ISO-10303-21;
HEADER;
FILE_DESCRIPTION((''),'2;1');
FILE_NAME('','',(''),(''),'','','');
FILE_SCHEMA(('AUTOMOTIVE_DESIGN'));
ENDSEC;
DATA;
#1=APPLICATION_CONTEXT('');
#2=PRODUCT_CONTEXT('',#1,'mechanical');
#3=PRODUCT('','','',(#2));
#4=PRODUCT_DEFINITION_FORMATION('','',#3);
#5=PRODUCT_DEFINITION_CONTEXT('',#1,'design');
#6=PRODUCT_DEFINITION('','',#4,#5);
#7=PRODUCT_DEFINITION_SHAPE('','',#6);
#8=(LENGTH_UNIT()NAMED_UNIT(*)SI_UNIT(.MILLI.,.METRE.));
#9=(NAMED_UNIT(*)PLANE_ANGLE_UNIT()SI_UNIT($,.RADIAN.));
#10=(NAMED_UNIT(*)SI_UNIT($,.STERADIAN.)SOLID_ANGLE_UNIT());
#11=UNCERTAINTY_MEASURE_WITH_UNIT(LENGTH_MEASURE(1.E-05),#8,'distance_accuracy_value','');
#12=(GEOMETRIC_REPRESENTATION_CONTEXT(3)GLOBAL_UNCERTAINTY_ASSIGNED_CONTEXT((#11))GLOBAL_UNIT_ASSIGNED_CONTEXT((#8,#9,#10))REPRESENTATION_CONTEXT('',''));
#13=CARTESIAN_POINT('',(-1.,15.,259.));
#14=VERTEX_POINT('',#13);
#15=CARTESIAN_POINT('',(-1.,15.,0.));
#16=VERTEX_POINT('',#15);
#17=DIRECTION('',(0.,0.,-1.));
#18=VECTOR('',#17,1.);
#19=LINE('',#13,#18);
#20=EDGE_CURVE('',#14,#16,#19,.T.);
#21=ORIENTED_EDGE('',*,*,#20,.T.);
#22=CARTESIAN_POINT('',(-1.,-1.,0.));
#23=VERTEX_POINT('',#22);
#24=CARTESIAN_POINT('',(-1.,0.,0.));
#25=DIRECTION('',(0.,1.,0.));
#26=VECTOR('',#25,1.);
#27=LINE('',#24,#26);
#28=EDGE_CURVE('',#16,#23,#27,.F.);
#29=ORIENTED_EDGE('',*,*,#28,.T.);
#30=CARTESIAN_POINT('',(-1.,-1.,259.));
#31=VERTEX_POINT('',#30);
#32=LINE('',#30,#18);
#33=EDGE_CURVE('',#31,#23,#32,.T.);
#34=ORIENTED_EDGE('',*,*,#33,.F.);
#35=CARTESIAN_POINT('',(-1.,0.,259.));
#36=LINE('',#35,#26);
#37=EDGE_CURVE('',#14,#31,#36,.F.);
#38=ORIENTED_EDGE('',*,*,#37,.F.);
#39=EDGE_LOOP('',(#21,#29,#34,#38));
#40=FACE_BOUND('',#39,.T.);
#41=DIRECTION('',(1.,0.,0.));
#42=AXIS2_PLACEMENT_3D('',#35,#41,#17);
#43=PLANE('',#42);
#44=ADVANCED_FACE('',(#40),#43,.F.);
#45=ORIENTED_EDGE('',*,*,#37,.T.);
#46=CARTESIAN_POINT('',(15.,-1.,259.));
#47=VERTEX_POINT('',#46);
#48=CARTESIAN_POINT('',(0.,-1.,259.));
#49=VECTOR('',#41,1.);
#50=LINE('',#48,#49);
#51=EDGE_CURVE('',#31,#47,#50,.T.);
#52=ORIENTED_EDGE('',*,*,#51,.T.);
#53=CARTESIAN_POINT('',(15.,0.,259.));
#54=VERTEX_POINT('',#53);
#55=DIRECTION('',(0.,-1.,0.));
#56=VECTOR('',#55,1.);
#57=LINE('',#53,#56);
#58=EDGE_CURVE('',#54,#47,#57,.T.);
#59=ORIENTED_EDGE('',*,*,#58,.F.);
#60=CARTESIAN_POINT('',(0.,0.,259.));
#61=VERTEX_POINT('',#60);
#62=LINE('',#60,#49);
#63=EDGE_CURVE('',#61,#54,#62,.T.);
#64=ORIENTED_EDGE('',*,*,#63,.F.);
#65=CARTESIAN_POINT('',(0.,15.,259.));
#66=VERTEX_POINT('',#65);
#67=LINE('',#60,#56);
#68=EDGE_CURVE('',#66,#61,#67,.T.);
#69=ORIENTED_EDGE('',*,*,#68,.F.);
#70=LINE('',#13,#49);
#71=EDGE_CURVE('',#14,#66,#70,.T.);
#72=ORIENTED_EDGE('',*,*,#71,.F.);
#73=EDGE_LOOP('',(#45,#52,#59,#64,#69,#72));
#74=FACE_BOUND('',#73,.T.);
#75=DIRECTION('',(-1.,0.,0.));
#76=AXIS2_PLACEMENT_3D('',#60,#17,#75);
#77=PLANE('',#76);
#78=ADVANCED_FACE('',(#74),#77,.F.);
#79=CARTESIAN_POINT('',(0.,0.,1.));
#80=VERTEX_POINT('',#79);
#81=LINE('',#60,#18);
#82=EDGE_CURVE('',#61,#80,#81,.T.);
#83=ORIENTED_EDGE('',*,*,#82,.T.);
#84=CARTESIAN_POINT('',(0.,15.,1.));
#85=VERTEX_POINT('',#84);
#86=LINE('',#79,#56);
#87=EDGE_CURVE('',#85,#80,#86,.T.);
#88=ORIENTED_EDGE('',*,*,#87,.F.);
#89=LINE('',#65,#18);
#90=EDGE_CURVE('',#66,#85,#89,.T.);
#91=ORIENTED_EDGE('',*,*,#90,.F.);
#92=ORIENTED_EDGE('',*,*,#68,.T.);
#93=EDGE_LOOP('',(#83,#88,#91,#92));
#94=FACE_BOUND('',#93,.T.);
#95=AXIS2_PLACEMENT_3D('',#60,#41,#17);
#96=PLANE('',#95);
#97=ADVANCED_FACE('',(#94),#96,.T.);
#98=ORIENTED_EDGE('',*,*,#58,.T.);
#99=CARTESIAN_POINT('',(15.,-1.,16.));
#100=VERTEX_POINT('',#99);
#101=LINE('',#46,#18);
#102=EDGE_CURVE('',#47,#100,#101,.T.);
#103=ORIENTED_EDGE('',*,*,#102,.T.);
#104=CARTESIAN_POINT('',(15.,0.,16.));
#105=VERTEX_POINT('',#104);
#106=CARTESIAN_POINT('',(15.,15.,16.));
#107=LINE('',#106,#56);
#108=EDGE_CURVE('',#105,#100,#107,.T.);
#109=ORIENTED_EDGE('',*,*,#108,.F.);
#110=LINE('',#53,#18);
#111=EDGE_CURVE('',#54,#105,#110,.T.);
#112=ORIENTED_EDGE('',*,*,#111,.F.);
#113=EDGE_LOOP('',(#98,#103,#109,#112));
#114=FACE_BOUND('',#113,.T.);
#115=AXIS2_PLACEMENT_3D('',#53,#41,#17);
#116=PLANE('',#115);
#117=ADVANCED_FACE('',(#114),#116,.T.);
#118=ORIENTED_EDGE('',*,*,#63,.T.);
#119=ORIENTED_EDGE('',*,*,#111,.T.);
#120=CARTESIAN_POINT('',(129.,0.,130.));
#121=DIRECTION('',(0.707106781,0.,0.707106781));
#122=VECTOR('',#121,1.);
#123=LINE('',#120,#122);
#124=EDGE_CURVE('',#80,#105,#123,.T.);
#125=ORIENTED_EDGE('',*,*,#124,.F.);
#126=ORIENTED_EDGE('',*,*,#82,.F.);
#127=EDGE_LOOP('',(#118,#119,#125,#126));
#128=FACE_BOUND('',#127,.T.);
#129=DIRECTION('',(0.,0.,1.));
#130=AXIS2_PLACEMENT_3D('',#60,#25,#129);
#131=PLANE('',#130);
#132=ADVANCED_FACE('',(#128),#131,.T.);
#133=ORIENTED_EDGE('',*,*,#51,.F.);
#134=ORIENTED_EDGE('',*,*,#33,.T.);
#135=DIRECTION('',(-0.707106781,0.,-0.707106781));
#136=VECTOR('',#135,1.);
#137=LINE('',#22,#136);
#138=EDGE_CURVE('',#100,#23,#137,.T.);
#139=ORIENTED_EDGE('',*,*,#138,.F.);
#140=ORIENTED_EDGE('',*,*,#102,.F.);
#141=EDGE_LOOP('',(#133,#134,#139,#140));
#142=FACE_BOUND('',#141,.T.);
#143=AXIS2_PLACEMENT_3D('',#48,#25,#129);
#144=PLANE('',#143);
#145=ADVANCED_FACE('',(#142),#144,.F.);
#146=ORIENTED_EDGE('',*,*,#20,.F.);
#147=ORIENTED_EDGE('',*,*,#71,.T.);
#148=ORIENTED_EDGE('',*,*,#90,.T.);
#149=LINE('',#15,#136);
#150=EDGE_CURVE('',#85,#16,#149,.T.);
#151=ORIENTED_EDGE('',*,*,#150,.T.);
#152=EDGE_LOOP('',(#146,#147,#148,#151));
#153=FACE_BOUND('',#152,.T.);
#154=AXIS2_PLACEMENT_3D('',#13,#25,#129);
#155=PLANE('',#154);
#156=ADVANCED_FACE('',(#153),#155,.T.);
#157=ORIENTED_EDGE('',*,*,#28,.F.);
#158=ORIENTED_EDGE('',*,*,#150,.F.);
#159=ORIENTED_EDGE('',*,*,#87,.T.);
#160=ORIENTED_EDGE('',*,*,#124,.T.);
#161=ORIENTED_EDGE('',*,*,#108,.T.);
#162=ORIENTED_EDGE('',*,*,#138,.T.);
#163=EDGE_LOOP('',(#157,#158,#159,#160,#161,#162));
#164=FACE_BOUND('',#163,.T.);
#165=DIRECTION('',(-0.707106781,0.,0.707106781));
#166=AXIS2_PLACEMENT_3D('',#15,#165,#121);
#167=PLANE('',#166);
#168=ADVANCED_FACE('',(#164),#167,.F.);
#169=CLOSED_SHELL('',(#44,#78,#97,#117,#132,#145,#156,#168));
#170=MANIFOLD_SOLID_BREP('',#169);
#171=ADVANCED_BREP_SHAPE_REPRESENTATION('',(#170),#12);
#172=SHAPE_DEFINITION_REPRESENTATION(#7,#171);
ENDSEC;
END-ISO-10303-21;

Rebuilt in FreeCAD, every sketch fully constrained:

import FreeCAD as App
import Part
import Sketcher

V = App.Vector


def add_polygon(sketch, points):
    """Adds a closed chain of lines whose ends are joined by coincident constraints."""
    first, n = sketch.GeometryCount, len(points)
    for a, b in zip(points, points[1:] + points[:1]):
        sketch.addGeometry(Part.LineSegment(App.Vector(*a, 0), App.Vector(*b, 0)), False)
    for i in range(n):
        sketch.addConstraint(Sketcher.Constraint("Coincident", first + i, 2, first + (i + 1) % n, 1))

doc = App.newDocument("Part")
body = doc.addObject("PartDesign::Body", "Body")

# Sketch on XY plane
sketch1 = body.newObject("Sketcher::SketchObject", "Sketch")
sketch1.AttachmentSupport = (doc.getObject("XY_Plane"), [""])
sketch1.MapMode = "FlatFace"
add_polygon(sketch1, [(15, 0), (0, 0), (0, 15), (-1, 15), (-1, -1), (15, -1)])  # lines 0-5
sketch1.addConstraint(Sketcher.Constraint("Horizontal", 0))
sketch1.addConstraint(Sketcher.Constraint("Vertical", 1))
sketch1.addConstraint(Sketcher.Constraint("Horizontal", 2))
sketch1.addConstraint(Sketcher.Constraint("Vertical", 3))
sketch1.addConstraint(Sketcher.Constraint("Horizontal", 4))
sketch1.addConstraint(Sketcher.Constraint("Vertical", 5))
sketch1.addConstraint(Sketcher.Constraint("Coincident", 0, 2, -1, 1))
sketch1.addConstraint(Sketcher.Constraint("Equal", 0, 1))
sketch1.addConstraint(Sketcher.Constraint("Equal", 4, 3))
sketch1.addConstraint(Sketcher.Constraint("DistanceX", 0, 2, 0, 1, 15.0))
sketch1.addConstraint(Sketcher.Constraint("DistanceX", 2, 2, 2, 1, 1.0))
pad1 = body.newObject("PartDesign::Pad", "Pad")
pad1.Profile = sketch1
pad1.Length = 259

# Sketch on XZ plane
sketch2 = body.newObject("Sketcher::SketchObject", "Sketch001")
sketch2.AttachmentSupport = (doc.getObject("XZ_Plane"), [""])
sketch2.MapMode = "FlatFace"
sketch2.AttachmentOffset = App.Placement(V(0, 0, 1), App.Rotation())
add_polygon(sketch2, [(-1, 0), (15, 0), (15, 16)])  # lines 0-2
sketch2.addConstraint(Sketcher.Constraint("Horizontal", 0))
sketch2.addConstraint(Sketcher.Constraint("Vertical", 1))
sketch2.addConstraint(Sketcher.Constraint("PointOnObject", 0, 2, -1))
sketch2.addConstraint(Sketcher.Constraint("Equal", 0, 1))
sketch2.addConstraint(Sketcher.Constraint("DistanceX", 0, 1, 0, 2, 16.0))
sketch2.addConstraint(Sketcher.Constraint("DistanceX", -1, 1, 0, 2, 15.0))
pocket1 = body.newObject("PartDesign::Pocket", "Pocket")
pocket1.Profile = sketch2
pocket1.Type = "ThroughAll"

doc.recompute()
